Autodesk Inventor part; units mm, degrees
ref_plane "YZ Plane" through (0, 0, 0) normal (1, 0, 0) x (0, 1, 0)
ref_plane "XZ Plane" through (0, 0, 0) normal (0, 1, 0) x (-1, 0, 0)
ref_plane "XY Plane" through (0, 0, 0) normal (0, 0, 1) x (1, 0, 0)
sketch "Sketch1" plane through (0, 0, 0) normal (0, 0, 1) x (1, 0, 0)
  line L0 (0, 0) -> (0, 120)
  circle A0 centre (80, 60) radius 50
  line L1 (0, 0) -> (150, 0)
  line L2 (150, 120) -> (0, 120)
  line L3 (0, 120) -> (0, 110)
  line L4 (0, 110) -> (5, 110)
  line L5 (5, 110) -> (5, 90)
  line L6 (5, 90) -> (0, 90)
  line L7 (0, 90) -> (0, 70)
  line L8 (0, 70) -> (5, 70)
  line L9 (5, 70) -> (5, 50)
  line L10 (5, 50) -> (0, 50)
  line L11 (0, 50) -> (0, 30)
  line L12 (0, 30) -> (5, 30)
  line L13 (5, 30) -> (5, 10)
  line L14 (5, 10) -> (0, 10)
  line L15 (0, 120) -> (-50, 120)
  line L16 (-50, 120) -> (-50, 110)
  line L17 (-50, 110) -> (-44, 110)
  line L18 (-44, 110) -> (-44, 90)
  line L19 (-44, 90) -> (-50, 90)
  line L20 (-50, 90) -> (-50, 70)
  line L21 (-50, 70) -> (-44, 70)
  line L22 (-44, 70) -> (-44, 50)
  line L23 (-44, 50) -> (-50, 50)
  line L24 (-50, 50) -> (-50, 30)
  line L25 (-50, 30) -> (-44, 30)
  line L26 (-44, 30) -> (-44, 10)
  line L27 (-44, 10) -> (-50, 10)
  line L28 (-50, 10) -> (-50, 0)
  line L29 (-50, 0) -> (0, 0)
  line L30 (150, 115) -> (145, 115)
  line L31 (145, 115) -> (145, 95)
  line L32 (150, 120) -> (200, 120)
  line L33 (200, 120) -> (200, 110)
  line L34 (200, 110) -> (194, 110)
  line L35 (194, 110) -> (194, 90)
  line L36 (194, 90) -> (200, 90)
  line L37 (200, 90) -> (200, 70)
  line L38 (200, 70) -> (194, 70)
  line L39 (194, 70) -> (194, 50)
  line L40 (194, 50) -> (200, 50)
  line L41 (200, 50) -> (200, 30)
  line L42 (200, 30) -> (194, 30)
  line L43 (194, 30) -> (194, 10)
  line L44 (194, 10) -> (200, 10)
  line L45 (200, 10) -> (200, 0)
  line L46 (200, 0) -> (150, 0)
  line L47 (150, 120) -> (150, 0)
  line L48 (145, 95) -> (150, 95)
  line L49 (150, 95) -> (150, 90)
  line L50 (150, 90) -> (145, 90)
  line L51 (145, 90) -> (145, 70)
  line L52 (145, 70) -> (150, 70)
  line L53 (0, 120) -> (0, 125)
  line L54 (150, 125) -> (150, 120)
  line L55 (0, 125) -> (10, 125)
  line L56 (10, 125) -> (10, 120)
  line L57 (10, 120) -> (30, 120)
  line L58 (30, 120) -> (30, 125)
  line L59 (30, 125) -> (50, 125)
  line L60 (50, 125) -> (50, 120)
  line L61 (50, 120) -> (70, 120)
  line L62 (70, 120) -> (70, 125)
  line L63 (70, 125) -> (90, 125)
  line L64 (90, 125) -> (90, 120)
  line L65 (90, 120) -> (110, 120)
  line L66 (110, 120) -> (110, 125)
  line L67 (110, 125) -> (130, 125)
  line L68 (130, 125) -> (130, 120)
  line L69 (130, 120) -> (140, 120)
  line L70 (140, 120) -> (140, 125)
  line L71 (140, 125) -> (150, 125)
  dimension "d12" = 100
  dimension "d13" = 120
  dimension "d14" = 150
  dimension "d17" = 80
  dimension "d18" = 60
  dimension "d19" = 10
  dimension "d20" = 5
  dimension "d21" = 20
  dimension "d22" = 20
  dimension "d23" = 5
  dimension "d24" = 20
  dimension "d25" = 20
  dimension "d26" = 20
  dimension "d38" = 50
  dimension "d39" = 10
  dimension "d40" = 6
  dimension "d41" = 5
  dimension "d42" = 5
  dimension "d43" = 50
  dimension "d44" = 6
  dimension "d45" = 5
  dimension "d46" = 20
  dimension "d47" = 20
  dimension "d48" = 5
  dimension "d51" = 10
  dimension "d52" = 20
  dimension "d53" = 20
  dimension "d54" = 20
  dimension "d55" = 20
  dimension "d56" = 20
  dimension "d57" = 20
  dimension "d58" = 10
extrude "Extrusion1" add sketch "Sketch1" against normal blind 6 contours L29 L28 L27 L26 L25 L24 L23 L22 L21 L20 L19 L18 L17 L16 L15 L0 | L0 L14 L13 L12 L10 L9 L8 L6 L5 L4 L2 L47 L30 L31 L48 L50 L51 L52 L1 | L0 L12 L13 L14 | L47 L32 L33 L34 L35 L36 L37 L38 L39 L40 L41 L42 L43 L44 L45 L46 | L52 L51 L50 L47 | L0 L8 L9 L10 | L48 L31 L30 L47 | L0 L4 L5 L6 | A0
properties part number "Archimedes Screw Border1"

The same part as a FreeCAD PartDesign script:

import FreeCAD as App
import Part
import Sketcher

V = App.Vector


def add_polygon(sketch, points):
    """Adds a closed chain of lines whose ends are joined by coincident constraints."""
    first, n = sketch.GeometryCount, len(points)
    for a, b in zip(points, points[1:] + points[:1]):
        sketch.addGeometry(Part.LineSegment(App.Vector(*a, 0), App.Vector(*b, 0)), False)
    for i in range(n):
        sketch.addConstraint(Sketcher.Constraint("Coincident", first + i, 2, first + (i + 1) % n, 1))

doc = App.newDocument("Part")
body = doc.addObject("PartDesign::Body", "Body")

# Sketch on XY plane
sketch1 = doc.addObject("Sketcher::SketchObject", "Sketch")
body.addObject(sketch1)
sketch1.AttachmentSupport = (doc.XY_Plane, [""])
sketch1.MapMode = "FlatFace"
add_polygon(sketch1, [(-50, 0), (200, 0), (200, 10), (194, 10), (194, 30), (200, 30), (200, 50), (194, 50), (194, 70), (200, 70), (200, 90), (194, 90), (194, 110), (200, 110), (200, 120), (-50, 120), (-50, 110), (-44, 110), (-44, 90), (-50, 90), (-50, 70), (-44, 70), (-44, 50), (-50, 50), (-50, 30), (-44, 30), (-44, 10), (-50, 10)])  # lines 0-27
sketch1.addConstraint([
    Sketcher.Constraint("Horizontal", 0),
    Sketcher.Constraint("Vertical", 1),
    Sketcher.Constraint("Horizontal", 2),
    Sketcher.Constraint("Vertical", 3),
    Sketcher.Constraint("Horizontal", 4),
    Sketcher.Constraint("Vertical", 5),
    Sketcher.Constraint("Horizontal", 6),
    Sketcher.Constraint("Vertical", 7),
    Sketcher.Constraint("Horizontal", 8),
    Sketcher.Constraint("Vertical", 9),
    Sketcher.Constraint("Horizontal", 10),
    Sketcher.Constraint("Vertical", 11),
    Sketcher.Constraint("Horizontal", 12),
    Sketcher.Constraint("Vertical", 13),
    Sketcher.Constraint("Horizontal", 14),
    Sketcher.Constraint("Vertical", 15),
    Sketcher.Constraint("Horizontal", 16),
    Sketcher.Constraint("Vertical", 17),
    Sketcher.Constraint("Horizontal", 18),
    Sketcher.Constraint("Vertical", 19),
    Sketcher.Constraint("Horizontal", 20),
    Sketcher.Constraint("Vertical", 21),
    Sketcher.Constraint("Horizontal", 22),
    Sketcher.Constraint("Vertical", 23),
    Sketcher.Constraint("Horizontal", 24),
    Sketcher.Constraint("Vertical", 25),
    Sketcher.Constraint("Horizontal", 26),
    Sketcher.Constraint("Vertical", 27),
    Sketcher.Constraint("PointOnObject", 0, 2, -1),
    Sketcher.Constraint("Horizontal", 12, 2, 15, 2),
    Sketcher.Constraint("Horizontal", 10, 2, 17, 2),
    Sketcher.Constraint("Horizontal", 8, 2, 19, 2),
    Sketcher.Constraint("Horizontal", 6, 2, 21, 2),
    Sketcher.Constraint("Horizontal", 4, 2, 23, 2),
    Sketcher.Constraint("Horizontal", 2, 2, 25, 2),
    Sketcher.Constraint("Vertical", 1, 2, 4, 2),
    Sketcher.Constraint("Vertical", 3, 2, 6, 2),
    Sketcher.Constraint("Vertical", 5, 2, 8, 2),
    Sketcher.Constraint("Vertical", 7, 2, 10, 2),
    Sketcher.Constraint("Vertical", 9, 2, 12, 2),
    Sketcher.Constraint("Vertical", 15, 2, 18, 2),
    Sketcher.Constraint("Vertical", 17, 2, 20, 2),
    Sketcher.Constraint("Vertical", 19, 2, 22, 2),
    Sketcher.Constraint("Vertical", 21, 2, 24, 2),
    Sketcher.Constraint("Vertical", 23, 2, 26, 2),
    Sketcher.Constraint("Equal", 12, 16),
    Sketcher.Constraint("Equal", 3, 5),
    Sketcher.Constraint("Equal", 5, 7),
    Sketcher.Constraint("Equal", 7, 9),
    Sketcher.Constraint("Equal", 9, 11),
    Sketcher.Constraint("Equal", 1, 13),
    Sketcher.Constraint("DistanceX", 2, 2, 2, 1, 6.0),
    Sketcher.Constraint("DistanceY", 1, 1, 1, 2, 10.0),
    Sketcher.Constraint("DistanceY", 3, 1, 3, 2, 20.0),
    Sketcher.Constraint("DistanceX", 14, 2, -1, 1, 50.0),
    Sketcher.Constraint("DistanceX", 0, 1, 0, 2, 250.0),
])
pad1 = doc.addObject("PartDesign::Pad", "Pad")
body.addObject(pad1)
pad1.Profile = sketch1
pad1.Length = 6
pad1.Reversed = True

doc.recompute()
